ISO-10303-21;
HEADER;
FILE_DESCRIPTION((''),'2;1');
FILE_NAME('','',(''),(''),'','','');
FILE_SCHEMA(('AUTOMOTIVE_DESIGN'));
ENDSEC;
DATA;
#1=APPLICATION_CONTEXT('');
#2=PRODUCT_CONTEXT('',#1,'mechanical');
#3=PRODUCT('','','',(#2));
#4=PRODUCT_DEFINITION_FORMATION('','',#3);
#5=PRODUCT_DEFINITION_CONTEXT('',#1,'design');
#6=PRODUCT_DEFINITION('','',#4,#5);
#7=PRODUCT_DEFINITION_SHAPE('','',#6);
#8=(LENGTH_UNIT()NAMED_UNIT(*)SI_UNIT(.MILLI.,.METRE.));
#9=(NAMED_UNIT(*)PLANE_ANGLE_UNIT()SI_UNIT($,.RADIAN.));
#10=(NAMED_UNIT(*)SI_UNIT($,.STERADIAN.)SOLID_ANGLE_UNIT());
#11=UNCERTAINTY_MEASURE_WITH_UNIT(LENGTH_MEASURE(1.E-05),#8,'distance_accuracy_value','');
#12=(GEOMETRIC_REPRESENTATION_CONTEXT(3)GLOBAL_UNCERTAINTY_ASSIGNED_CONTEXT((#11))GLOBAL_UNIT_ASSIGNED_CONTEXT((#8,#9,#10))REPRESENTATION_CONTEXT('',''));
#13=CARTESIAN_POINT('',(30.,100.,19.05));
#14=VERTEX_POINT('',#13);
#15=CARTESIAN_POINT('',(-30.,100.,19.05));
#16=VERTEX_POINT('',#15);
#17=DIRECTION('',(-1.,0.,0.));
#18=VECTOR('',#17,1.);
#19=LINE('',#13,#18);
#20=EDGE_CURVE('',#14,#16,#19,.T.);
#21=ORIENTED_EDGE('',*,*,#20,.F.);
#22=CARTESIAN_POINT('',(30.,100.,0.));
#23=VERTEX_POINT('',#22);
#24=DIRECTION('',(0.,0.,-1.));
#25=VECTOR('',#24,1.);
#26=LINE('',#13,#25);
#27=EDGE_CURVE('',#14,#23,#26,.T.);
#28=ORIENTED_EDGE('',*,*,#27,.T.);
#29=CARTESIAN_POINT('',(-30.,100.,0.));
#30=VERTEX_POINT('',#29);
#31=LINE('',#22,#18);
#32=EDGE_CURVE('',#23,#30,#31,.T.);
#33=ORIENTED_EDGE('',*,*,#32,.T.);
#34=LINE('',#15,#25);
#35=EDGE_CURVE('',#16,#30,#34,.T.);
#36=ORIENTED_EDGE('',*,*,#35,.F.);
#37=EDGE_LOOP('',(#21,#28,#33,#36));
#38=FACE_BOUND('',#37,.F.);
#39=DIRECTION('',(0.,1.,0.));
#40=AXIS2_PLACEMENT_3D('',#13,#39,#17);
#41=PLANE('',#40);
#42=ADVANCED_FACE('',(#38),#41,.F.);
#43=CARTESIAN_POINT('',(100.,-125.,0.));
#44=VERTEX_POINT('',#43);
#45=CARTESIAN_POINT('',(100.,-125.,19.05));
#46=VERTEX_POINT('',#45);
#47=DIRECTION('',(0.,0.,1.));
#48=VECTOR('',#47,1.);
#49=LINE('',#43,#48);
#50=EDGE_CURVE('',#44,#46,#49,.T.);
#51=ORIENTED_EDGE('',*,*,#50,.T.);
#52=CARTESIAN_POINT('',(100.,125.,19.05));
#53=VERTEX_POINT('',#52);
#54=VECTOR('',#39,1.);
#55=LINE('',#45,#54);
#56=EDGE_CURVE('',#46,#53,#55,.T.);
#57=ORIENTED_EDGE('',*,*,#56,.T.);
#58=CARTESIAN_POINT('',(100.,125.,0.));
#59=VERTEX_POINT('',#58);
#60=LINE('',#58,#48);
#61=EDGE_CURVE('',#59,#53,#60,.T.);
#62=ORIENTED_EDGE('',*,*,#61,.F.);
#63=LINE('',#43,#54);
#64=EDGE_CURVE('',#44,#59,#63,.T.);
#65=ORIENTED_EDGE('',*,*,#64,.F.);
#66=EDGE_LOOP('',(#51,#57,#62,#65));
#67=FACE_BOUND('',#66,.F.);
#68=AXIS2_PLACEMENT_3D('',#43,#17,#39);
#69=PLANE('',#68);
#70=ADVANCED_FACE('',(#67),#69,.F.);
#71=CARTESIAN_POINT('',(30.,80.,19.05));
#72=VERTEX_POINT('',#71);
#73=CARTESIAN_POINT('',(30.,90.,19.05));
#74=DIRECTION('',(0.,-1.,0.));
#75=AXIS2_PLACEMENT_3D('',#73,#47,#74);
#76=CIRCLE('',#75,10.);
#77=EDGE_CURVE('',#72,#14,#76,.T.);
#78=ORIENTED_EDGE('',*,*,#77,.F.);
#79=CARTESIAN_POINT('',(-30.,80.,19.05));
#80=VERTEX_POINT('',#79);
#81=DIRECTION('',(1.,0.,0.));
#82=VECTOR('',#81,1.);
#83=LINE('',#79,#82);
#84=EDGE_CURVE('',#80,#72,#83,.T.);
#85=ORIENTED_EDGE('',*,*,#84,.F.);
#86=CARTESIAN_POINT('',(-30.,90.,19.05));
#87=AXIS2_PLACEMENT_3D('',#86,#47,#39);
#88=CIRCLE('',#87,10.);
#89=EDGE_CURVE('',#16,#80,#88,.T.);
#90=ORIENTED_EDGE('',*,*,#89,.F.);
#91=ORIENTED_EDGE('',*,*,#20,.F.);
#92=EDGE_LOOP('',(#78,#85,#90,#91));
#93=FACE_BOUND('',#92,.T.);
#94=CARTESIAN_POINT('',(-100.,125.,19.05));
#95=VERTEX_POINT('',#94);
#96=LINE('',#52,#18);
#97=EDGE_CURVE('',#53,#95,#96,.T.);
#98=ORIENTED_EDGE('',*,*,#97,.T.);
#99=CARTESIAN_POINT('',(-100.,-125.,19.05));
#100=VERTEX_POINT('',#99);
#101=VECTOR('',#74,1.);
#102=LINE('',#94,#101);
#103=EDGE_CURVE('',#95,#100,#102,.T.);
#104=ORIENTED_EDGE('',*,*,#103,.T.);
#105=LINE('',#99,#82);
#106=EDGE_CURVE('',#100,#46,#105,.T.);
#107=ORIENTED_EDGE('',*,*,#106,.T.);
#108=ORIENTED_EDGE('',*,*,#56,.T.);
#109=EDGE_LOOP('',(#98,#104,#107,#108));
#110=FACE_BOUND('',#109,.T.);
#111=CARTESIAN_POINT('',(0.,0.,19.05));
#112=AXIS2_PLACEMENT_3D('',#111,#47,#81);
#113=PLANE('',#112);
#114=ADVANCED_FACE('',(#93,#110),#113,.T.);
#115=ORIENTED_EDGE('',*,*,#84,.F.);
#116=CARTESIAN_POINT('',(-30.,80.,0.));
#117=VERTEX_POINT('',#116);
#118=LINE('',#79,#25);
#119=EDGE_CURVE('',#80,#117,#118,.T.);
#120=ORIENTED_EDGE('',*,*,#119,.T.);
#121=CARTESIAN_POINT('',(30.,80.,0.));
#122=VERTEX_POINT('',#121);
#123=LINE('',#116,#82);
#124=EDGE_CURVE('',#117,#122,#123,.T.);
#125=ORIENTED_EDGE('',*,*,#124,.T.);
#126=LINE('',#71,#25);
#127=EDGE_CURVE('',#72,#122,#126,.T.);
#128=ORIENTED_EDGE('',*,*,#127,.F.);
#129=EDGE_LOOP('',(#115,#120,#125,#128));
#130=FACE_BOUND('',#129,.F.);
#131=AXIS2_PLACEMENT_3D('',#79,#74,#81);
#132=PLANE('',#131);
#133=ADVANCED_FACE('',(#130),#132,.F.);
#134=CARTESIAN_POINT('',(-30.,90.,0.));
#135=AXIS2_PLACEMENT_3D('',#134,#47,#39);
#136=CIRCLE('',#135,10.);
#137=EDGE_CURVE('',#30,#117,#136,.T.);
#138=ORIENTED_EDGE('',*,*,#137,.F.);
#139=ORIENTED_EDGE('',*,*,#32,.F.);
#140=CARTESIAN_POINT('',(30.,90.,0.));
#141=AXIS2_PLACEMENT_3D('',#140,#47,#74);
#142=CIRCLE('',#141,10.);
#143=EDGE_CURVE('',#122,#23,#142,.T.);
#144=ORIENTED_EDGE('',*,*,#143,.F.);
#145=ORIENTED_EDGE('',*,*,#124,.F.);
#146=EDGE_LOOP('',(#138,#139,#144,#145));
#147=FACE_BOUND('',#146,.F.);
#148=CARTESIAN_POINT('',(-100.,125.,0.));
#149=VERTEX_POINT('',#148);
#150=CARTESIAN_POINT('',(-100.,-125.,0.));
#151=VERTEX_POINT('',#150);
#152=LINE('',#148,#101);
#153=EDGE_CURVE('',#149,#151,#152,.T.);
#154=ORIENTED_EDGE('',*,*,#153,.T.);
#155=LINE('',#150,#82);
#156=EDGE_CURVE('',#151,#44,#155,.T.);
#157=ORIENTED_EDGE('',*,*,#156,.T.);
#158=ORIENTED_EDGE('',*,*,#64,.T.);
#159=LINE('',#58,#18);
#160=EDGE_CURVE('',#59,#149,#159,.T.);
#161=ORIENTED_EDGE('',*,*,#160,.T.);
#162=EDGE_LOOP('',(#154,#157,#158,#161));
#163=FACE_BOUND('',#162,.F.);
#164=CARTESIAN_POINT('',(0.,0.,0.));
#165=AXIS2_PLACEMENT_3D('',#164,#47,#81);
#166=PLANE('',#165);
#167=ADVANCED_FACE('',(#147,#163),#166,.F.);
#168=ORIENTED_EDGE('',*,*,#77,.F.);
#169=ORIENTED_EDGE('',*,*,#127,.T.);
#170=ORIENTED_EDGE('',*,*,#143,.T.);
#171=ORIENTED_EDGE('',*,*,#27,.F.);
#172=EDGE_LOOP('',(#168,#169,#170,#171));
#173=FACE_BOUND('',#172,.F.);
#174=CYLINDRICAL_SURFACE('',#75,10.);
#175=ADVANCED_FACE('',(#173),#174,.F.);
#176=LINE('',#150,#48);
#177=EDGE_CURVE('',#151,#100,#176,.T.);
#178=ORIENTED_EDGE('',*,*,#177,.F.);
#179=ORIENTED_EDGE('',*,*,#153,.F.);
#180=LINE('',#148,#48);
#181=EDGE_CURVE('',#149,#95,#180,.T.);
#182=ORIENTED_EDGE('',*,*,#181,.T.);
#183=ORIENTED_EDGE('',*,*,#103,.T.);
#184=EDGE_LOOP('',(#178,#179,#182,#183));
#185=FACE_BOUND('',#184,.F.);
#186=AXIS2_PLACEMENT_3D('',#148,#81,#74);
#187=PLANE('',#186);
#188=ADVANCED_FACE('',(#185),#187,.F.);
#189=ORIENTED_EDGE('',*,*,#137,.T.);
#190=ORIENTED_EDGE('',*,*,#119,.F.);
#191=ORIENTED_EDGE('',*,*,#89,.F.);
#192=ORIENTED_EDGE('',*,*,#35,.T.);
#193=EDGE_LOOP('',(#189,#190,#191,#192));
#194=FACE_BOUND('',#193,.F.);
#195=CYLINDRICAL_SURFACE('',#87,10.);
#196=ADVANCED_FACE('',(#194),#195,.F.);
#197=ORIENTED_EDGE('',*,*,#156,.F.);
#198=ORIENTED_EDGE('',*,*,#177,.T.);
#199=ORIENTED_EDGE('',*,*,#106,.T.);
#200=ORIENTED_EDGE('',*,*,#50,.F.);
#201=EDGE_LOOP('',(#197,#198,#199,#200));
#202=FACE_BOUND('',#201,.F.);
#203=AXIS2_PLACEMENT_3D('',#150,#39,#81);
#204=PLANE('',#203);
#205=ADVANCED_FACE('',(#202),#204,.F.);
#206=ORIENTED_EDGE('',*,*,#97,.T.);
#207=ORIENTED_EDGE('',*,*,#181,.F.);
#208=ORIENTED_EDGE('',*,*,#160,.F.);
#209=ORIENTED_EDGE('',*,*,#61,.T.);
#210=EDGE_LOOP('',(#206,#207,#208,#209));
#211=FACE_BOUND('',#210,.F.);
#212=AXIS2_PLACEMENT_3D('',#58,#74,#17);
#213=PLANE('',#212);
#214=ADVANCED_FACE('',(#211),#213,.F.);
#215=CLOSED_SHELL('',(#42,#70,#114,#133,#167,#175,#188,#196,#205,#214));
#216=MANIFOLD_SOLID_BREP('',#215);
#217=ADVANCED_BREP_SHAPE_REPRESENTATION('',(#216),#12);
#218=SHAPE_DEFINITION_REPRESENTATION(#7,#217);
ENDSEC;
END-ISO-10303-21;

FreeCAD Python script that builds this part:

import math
import FreeCAD as App
import Part
import Sketcher
from FreeCAD import Vector
Q = App.Units.Quantity


def add_polygon(sketch, points):
    """Adds a closed chain of lines whose ends are joined by coincident constraints."""
    first, n = sketch.GeometryCount, len(points)
    for a, b in zip(points, points[1:] + points[:1]):
        sketch.addGeometry(Part.LineSegment(App.Vector(*a, 0), App.Vector(*b, 0)), False)
    for i in range(n):
        sketch.addConstraint(Sketcher.Constraint("Coincident", first + i, 2, first + (i + 1) % n, 1))

doc = App.newDocument("Part")
params = doc.addObject("Spreadsheet::Sheet", "Params")
for row, (alias, value) in enumerate([
    ("sketch1_width", "200 mm"),
    ("sketch1_height", "250 mm"),
    ("pad1_length", "19.05 mm"),
    ("sketch2_radius", "10 mm"),
    ("pocket1_length", "19.05 mm"),
], start=1):
    params.set(f"A{row}", alias)
    params.set(f"B{row}", "=" + value)
    params.setAlias(f"B{row}", alias)

body = doc.addObject("PartDesign::Body", "Body")

# Sketch on XY plane
sketch1 = doc.addObject("Sketcher::SketchObject", "Sketch")
body.addObject(sketch1)
sketch1.AttachmentSupport = (doc.XY_Plane, [""])
sketch1.MapMode = "FlatFace"
add_polygon(sketch1, [(-100, 125), (-100, -125), (100, -125), (100, 125)])  # lines 0-3
sketch1.addConstraint([
    Sketcher.Constraint("Vertical", 0),
    Sketcher.Constraint("Horizontal", 1),
    Sketcher.Constraint("Vertical", 2),
    Sketcher.Constraint("Horizontal", 3),
    Sketcher.Constraint("Symmetric", 0, 2, 2, 2, -1, 1),
    Sketcher.Constraint("DistanceX", 1, 1, 1, 2, Q("200 mm")),
    Sketcher.Constraint("DistanceY", 0, 2, 0, 1, Q("250 mm")),
])
sketch1.setExpression("Constraints[9]", "Params.sketch1_width")
sketch1.setExpression("Constraints[10]", "Params.sketch1_height")
pad1 = doc.addObject("PartDesign::Pad", "Pad")
body.addObject(pad1)
pad1.Profile = sketch1
pad1.setExpression("Length", "Params.pad1_length")

# Sketch on XY plane
sketch2 = doc.addObject("Sketcher::SketchObject", "Sketch001")
body.addObject(sketch2)
sketch2.AttachmentSupport = (doc.XY_Plane, [""])
sketch2.MapMode = "FlatFace"
sketch2.AttachmentOffset = App.Placement(Vector(0, 0, 19.05), App.Rotation())
sketch2.addGeometry([
    Part.ArcOfCircle(Part.Circle(Vector(-30, 90, 0), Vector(0, 0, 1), 10), math.radians(90), math.radians(270)),
    Part.LineSegment(Vector(-30, 80, 0), Vector(30, 80, 0)),
    Part.ArcOfCircle(Part.Circle(Vector(30, 90, 0), Vector(0, 0, 1), 10), math.radians(-90), math.radians(90)),
    Part.LineSegment(Vector(30, 100, 0), Vector(-30, 100, 0)),
], False)
sketch2.addConstraint([
    Sketcher.Constraint("Tangent", 0, 2, 1, 1),
    Sketcher.Constraint("Tangent", 1, 2, 2, 1),
    Sketcher.Constraint("Tangent", 2, 2, 3, 1),
    Sketcher.Constraint("Tangent", 3, 2, 0, 1),
    Sketcher.Constraint("Horizontal", 1),
    Sketcher.Constraint("Horizontal", 3),
    Sketcher.Constraint("Radius", 0, Q("10 mm")),
    Sketcher.Constraint("DistanceX", 0, 3, -1, 1, Q("30 mm")),
    Sketcher.Constraint("DistanceX", -1, 1, 2, 3, Q("30 mm")),
    Sketcher.Constraint("DistanceY", -1, 1, 0, 3, Q("90 mm")),
])
sketch2.setExpression("Constraints[6]", "Params.sketch2_radius")
pocket1 = doc.addObject("PartDesign::Pocket", "Pocket")
body.addObject(pocket1)
pocket1.Profile = sketch2
pocket1.setExpression("Length", "Params.pocket1_length")

doc.recompute()
